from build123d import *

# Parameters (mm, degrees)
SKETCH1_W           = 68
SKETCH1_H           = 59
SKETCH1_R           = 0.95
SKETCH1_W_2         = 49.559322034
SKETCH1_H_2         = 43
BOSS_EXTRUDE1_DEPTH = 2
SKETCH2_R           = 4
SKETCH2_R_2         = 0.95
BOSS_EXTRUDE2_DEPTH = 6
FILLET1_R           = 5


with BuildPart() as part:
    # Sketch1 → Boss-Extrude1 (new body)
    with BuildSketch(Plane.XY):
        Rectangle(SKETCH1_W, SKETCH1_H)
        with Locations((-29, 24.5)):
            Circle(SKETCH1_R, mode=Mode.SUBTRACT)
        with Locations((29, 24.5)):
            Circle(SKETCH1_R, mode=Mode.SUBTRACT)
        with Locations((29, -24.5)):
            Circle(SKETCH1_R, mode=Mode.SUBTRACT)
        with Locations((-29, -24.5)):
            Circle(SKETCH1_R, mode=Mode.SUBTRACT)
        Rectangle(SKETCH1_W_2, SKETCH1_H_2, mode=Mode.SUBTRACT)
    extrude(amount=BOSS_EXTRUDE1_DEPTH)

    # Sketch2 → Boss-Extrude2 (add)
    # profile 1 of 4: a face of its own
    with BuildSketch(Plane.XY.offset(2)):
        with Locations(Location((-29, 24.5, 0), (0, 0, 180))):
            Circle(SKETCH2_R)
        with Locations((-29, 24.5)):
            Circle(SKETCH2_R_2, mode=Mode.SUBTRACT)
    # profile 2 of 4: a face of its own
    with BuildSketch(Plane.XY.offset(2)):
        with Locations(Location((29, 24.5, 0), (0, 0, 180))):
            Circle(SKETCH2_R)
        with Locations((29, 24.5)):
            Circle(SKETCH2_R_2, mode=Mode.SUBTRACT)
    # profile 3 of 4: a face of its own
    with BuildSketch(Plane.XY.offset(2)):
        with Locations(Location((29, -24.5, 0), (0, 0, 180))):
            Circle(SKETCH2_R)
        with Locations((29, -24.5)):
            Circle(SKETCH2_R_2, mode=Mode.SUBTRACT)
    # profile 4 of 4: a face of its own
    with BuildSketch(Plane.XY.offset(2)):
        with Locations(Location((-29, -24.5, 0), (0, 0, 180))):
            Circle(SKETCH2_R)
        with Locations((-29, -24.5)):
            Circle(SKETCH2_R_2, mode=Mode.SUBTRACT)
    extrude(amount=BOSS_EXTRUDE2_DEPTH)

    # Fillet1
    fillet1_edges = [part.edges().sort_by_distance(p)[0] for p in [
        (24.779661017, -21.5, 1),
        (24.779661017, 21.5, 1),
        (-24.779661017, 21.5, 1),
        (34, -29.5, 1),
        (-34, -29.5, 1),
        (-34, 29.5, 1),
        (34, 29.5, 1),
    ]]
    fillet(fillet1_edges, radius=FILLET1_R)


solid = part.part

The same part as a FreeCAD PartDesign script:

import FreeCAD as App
import Part
import Sketcher
Q = App.Units.Quantity


def edges_at(feature, points):
    """Names of the edges that pass closest to the given points."""
    edges = feature.Shape.Edges
    near = lambda p: min(range(len(edges)), key=lambda i: edges[i].distToShape(Part.Vertex(*p))[0])
    return sorted({f"Edge{near(p) + 1}" for p in points})

doc = App.newDocument("Part")
body = doc.addObject("PartDesign::Body", "Body")

# Sketch on XY plane
sketch1 = body.newObject("Sketcher::SketchObject", "Sketch")
sketch1.AttachmentSupport = (doc.getObject("XY_Plane"), [""])
sketch1.MapMode = "FlatFace"
sketch1.addGeometry([
    Part.LineSegment(App.Vector(-34, 29.5, 0), App.Vector(-34, -29.5, 0)),  # 0
    Part.LineSegment(App.Vector(-34, -29.5, 0), App.Vector(34, -29.5, 0)),  # 1
    Part.LineSegment(App.Vector(34, -29.5, 0), App.Vector(34, 29.5, 0)),  # 2
    Part.LineSegment(App.Vector(34, 29.5, 0), App.Vector(-34, 29.5, 0)),  # 3
    Part.Circle(App.Vector(-29, -24.5, 0), App.Vector(0, 0, 1), 0.9),  # 4
    Part.Circle(App.Vector(29, -24.5, 0), App.Vector(0, 0, 1), 0.9),  # 5
    Part.LineSegment(App.Vector(24.8, -21.5, 0), App.Vector(-24.8, -21.5, 0)),  # 6
    Part.LineSegment(App.Vector(-24.8, -21.5, 0), App.Vector(-24.8, 21.5, 0)),  # 7
    Part.LineSegment(App.Vector(-24.8, 21.5, 0), App.Vector(24.8, 21.5, 0)),  # 8
    Part.LineSegment(App.Vector(24.8, 21.5, 0), App.Vector(24.8, -21.5, 0)),  # 9
    Part.Circle(App.Vector(-29, 24.5, 0), App.Vector(0, 0, 1), 0.9),  # 10
    Part.Circle(App.Vector(29, 24.5, 0), App.Vector(0, 0, 1), 0.9),  # 11
], False)
sketch1.addConstraint([
    Sketcher.Constraint("Coincident", 0, 2, 1, 1),
    Sketcher.Constraint("Coincident", 1, 2, 2, 1),
    Sketcher.Constraint("Coincident", 2, 2, 3, 1),
    Sketcher.Constraint("Coincident", 3, 2, 0, 1),
    Sketcher.Constraint("Coincident", 6, 2, 7, 1),
    Sketcher.Constraint("Coincident", 7, 2, 8, 1),
    Sketcher.Constraint("Coincident", 8, 2, 9, 1),
    Sketcher.Constraint("Coincident", 9, 2, 6, 1),
    Sketcher.Constraint("Vertical", 0),
    Sketcher.Constraint("Horizontal", 1),
    Sketcher.Constraint("Vertical", 2),
    Sketcher.Constraint("Horizontal", 3),
    Sketcher.Constraint("Horizontal", 6),
    Sketcher.Constraint("Vertical", 7),
    Sketcher.Constraint("Horizontal", 8),
    Sketcher.Constraint("Vertical", 9),
    Sketcher.Constraint("Equal", 4, 5),
    Sketcher.Constraint("Equal", 5, 10),
    Sketcher.Constraint("Equal", 10, 11),
    Sketcher.Constraint("Symmetric", 5, 3, 10, 3, -1, 1),
    Sketcher.Constraint("Symmetric", 4, 3, 11, 3, -1, 1),
    Sketcher.Constraint("Symmetric", 0, 2, 2, 2, -1, 1),
    Sketcher.Constraint("Symmetric", 6, 2, 8, 2, -1, 1),
    Sketcher.Constraint("Symmetric", 4, 3, 5, 3, -2),
    Sketcher.Constraint("Diameter", 4, Q("1.9 mm")),
    Sketcher.Constraint("DistanceX", 1, 1, 1, 2, Q("68 mm")),
    Sketcher.Constraint("DistanceY", 0, 2, 0, 1, Q("59 mm")),
    Sketcher.Constraint("DistanceY", 7, 1, 7, 2, Q("43 mm")),
    Sketcher.Constraint("DistanceX", 4, 3, -1, 1, Q("29 mm")),
    Sketcher.Constraint("DistanceY", 4, 3, 10, 3, Q("49 mm")),
    Sketcher.Constraint("DistanceX", 6, 2, 6, 1, Q("49.559322 mm")),
])
pad1 = body.newObject("PartDesign::Pad", "Pad")
pad1.Profile = sketch1
pad1.Length = 2

# Sketch on XY plane
sketch2 = body.newObject("Sketcher::SketchObject", "Sketch001")
sketch2.AttachmentSupport = (doc.getObject("XY_Plane"), [""])
sketch2.MapMode = "FlatFace"
sketch2.AttachmentOffset = App.Placement(App.Vector(0, 0, 2), App.Rotation())
sketch2.addGeometry([
    Part.Circle(App.Vector(-29, 24.5, 0), App.Vector(0, 0, 1), 4),  # 0
    Part.Circle(App.Vector(-29, 24.5, 0), App.Vector(0, 0, 1), 0.9),  # 1
    Part.Circle(App.Vector(29, 24.5, 0), App.Vector(0, 0, 1), 4),  # 2
    Part.Circle(App.Vector(29, 24.5, 0), App.Vector(0, 0, 1), 0.9),  # 3
    Part.Circle(App.Vector(29, -24.5, 0), App.Vector(0, 0, 1), 4),  # 4
    Part.Circle(App.Vector(29, -24.5, 0), App.Vector(0, 0, 1), 0.9),  # 5
    Part.Circle(App.Vector(-29, -24.5, 0), App.Vector(0, 0, 1), 4),  # 6
    Part.Circle(App.Vector(-29, -24.5, 0), App.Vector(0, 0, 1), 0.9),  # 7
], False)
sketch2.addConstraint([
    Sketcher.Constraint("Coincident", 1, 3, 0, 3),
    Sketcher.Constraint("Coincident", 3, 3, 2, 3),
    Sketcher.Constraint("Coincident", 5, 3, 4, 3),
    Sketcher.Constraint("Coincident", 7, 3, 6, 3),
    Sketcher.Constraint("Equal", 0, 2),
    Sketcher.Constraint("Equal", 1, 3),
    Sketcher.Constraint("Equal", 2, 4),
    Sketcher.Constraint("Equal", 3, 5),
    Sketcher.Constraint("Equal", 4, 6),
    Sketcher.Constraint("Equal", 5, 7),
    Sketcher.Constraint("Symmetric", 0, 3, 4, 3, -1, 1),
    Sketcher.Constraint("Symmetric", 2, 3, 6, 3, -1, 1),
    Sketcher.Constraint("Symmetric", 0, 3, 2, 3, -2),
    Sketcher.Constraint("Diameter", 0, Q("8 mm")),
    Sketcher.Constraint("Diameter", 1, Q("1.9 mm")),
    Sketcher.Constraint("DistanceX", 0, 3, -1, 1, Q("29 mm")),
    Sketcher.Constraint("DistanceY", 4, 3, 2, 3, Q("49 mm")),
])
pad2 = body.newObject("PartDesign::Pad", "Pad001")
pad2.Profile = sketch2
pad2.Length = 6
doc.recompute()

fillet = body.newObject("PartDesign::Fillet", "Fillet")
fillet.Base = (pad2, edges_at(pad2, [
    (24.78, -21.5, 1),
    (24.78, 21.5, 1),
    (-24.78, 21.5, 1),
    (34, -29.5, 1),
    (-34, -29.5, 1),
    (-34, 29.5, 1),
    (34, 29.5, 1),
]))
fillet.Radius = 5

doc.recompute()
